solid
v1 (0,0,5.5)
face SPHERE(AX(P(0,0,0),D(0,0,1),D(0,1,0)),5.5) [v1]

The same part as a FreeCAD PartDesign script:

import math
import FreeCAD as App
import Part
import Sketcher

V = App.Vector
Q = App.Units.Quantity

doc = App.newDocument("Part")
body = doc.addObject("PartDesign::Body", "Body")

sketch1 = body.newObject("Sketcher::SketchObject", "Sketch")
sketch1.AttachmentSupport = (doc.getObject("YZ_Plane"), [""])
sketch1.MapMode = "FlatFace"
sketch1.addGeometry(Part.ArcOfCircle(Part.Circle(V(0, 0, 0), V(0, 0, 1), 5.5), math.radians(-90), math.radians(90)), False)
sketch1.addGeometry(Part.LineSegment(V(0, 5.5, 0), V(0, -5.5, 0)), False)
sketch1.addConstraint(Sketcher.Constraint("Coincident", 0, 1, 1, 2))
sketch1.addConstraint(Sketcher.Constraint("Coincident", 1, 1, 0, 2))
sketch1.addConstraint(Sketcher.Constraint("Vertical", 1))
sketch1.addConstraint(Sketcher.Constraint("Coincident", 0, 3, -1, 1))
sketch1.addConstraint(Sketcher.Constraint("PointOnObject", 0, 1, -2))
sketch1.addConstraint(Sketcher.Constraint("Radius", 0, Q("5.5 mm")))
revolution = body.newObject("PartDesign::Revolution", "Revolution")
revolution.Profile = sketch1
revolution.ReferenceAxis = (sketch1, ["V_Axis"])
revolution.Angle = 360

doc.recompute()
